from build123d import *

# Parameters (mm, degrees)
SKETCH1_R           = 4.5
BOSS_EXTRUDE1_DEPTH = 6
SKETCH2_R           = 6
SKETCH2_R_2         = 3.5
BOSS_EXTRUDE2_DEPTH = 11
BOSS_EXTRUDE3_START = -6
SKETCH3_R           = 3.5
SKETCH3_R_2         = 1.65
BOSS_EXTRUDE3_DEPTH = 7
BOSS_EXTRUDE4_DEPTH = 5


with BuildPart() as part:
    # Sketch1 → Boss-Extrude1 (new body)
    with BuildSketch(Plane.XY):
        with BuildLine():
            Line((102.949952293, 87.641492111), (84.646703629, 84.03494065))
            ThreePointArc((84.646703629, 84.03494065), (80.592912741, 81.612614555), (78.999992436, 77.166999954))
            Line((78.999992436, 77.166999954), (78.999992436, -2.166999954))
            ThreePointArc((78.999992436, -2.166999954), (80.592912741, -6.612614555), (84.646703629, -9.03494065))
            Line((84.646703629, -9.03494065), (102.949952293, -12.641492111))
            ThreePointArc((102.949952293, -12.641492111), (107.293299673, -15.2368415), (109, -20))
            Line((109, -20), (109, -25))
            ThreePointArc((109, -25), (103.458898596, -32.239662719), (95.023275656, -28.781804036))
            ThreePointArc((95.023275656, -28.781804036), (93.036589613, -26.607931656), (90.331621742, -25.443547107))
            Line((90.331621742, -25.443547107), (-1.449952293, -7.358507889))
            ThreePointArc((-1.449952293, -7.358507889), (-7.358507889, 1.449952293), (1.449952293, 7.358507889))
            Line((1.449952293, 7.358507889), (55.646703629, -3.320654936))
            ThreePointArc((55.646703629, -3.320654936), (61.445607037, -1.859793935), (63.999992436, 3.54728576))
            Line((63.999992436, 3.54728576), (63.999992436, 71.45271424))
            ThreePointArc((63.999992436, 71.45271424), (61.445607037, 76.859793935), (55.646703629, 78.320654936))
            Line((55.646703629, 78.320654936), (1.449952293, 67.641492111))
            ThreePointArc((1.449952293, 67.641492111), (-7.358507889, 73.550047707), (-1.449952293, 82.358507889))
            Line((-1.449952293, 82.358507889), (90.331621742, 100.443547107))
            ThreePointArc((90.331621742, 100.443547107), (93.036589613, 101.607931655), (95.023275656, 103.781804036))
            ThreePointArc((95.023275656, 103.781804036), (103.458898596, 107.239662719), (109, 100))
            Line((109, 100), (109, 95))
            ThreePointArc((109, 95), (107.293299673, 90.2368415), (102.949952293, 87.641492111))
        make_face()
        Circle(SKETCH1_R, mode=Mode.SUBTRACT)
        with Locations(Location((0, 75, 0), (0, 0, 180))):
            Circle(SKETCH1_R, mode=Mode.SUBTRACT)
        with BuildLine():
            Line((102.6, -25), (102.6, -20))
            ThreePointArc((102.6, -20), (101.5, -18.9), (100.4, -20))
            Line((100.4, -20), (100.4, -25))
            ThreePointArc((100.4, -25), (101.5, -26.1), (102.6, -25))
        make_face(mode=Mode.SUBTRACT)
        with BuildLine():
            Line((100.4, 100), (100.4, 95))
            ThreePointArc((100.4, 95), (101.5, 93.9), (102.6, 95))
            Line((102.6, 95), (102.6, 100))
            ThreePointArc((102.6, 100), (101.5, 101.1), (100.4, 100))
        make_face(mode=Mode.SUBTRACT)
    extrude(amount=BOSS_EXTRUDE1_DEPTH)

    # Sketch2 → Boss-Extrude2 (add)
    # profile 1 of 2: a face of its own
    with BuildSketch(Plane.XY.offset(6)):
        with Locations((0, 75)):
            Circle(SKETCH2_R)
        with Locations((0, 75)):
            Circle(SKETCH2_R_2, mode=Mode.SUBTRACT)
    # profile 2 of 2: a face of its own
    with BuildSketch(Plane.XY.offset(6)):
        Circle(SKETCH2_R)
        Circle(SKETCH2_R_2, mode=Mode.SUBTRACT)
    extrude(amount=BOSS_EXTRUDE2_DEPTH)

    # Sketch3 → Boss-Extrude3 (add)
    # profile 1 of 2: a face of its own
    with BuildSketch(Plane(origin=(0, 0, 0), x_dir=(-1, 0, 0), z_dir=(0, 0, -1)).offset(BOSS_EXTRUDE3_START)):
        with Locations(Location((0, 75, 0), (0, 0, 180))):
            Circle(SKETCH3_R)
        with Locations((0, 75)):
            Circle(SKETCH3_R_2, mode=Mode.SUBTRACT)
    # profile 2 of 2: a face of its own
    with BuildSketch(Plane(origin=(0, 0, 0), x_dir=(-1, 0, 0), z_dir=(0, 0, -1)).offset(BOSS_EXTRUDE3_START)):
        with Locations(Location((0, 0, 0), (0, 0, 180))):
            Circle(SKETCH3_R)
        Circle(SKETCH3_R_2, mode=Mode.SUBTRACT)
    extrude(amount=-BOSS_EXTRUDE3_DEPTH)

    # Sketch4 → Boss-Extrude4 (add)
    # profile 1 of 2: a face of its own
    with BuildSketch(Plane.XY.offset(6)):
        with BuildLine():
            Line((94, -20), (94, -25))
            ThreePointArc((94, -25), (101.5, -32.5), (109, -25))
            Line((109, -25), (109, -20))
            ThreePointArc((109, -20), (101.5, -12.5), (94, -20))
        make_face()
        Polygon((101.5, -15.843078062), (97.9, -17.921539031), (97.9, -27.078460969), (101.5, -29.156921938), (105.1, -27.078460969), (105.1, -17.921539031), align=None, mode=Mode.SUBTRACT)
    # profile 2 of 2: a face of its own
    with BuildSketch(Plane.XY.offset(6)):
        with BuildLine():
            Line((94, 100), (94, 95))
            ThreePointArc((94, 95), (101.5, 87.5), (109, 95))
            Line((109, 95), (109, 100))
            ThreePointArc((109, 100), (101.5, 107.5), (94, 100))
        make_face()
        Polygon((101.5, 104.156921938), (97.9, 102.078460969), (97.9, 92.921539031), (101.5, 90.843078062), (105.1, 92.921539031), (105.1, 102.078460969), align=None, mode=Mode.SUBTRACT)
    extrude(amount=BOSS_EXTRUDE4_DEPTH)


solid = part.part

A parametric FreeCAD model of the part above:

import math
import FreeCAD as App
import Part
import Sketcher
from FreeCAD import Vector
Q = App.Units.Quantity


def add_polygon(sketch, points):
    """Adds a closed chain of lines whose ends are joined by coincident constraints."""
    first, n = sketch.GeometryCount, len(points)
    for a, b in zip(points, points[1:] + points[:1]):
        sketch.addGeometry(Part.LineSegment(App.Vector(*a, 0), App.Vector(*b, 0)), False)
    for i in range(n):
        sketch.addConstraint(Sketcher.Constraint("Coincident", first + i, 2, first + (i + 1) % n, 1))

doc = App.newDocument("Part")
body = doc.addObject("PartDesign::Body", "Body")

# Sketch on XY plane
sketch1 = body.newObject("Sketcher::SketchObject", "Sketch")
sketch1.AttachmentSupport = (doc.getObject("XY_Plane"), [""])
sketch1.MapMode = "FlatFace"
sketch1.addGeometry(Part.LineSegment(Vector(84.6, 84, 0), Vector(102.9, 87.6, 0)), False)
sketch1.addGeometry(Part.ArcOfCircle(Part.Circle(Vector(101.5, 95, 0), Vector(0, 0, 1), 7.5), math.radians(-79), math.radians(0)), False)
sketch1.addGeometry(Part.LineSegment(Vector(109, 95, 0), Vector(109, 100, 0)), False)
sketch1.addGeometry(Part.ArcOfCircle(Part.Circle(Vector(101.5, 100, 0), Vector(0, 0, 1), 7.5), math.radians(0), math.radians(150)), False)
sketch1.addGeometry(Part.ArcOfCircle(Part.Circle(Vector(89, 107.3, 0), Vector(0, 0, 1), 7), math.radians(-79), math.radians(-30)), False)
sketch1.addGeometry(Part.LineSegment(Vector(90.3, 100.4, 0), Vector(-1.4, 82.4, 0)), False)
sketch1.addGeometry(Part.ArcOfCircle(Part.Circle(Vector(0, 75, 0), Vector(0, 0, 1), 7.5), math.radians(101), math.radians(281)), False)
sketch1.addGeometry(Part.LineSegment(Vector(1.4, 67.6, 0), Vector(55.6, 78.3, 0)), False)
sketch1.addGeometry(Part.ArcOfCircle(Part.Circle(Vector(57, 71.5, 0), Vector(0, 0, 1), 7), math.radians(0), math.radians(101)), False)
sketch1.addGeometry(Part.LineSegment(Vector(64, 71.5, 0), Vector(64, 3.5, 0)), False)
sketch1.addGeometry(Part.ArcOfCircle(Part.Circle(Vector(57, 3.5, 0), Vector(0, 0, 1), 7), math.radians(-101), math.radians(0)), False)
sketch1.addGeometry(Part.LineSegment(Vector(55.6, -3.3, 0), Vector(1.4, 7.4, 0)), False)
sketch1.addGeometry(Part.ArcOfCircle(Part.Circle(Vector(0, 0, 0), Vector(0, 0, 1), 7.5), math.radians(79), math.radians(259)), False)
sketch1.addGeometry(Part.LineSegment(Vector(-1.4, -7.4, 0), Vector(90.3, -25.4, 0)), False)
sketch1.addGeometry(Part.ArcOfCircle(Part.Circle(Vector(89, -32.3, 0), Vector(0, 0, 1), 7), math.radians(30), math.radians(79)), False)
sketch1.addGeometry(Part.ArcOfCircle(Part.Circle(Vector(101.5, -25, 0), Vector(0, 0, 1), 7.5), math.radians(-150), math.radians(0)), False)
sketch1.addGeometry(Part.LineSegment(Vector(109, -25, 0), Vector(109, -20, 0)), False)
sketch1.addGeometry(Part.ArcOfCircle(Part.Circle(Vector(101.5, -20, 0), Vector(0, 0, 1), 7.5), math.radians(0), math.radians(79)), False)
sketch1.addGeometry(Part.LineSegment(Vector(102.9, -12.6, 0), Vector(84.6, -9, 0)), False)
sketch1.addGeometry(Part.ArcOfCircle(Part.Circle(Vector(86, -2.2, 0), Vector(0, 0, 1), 7), math.radians(180), math.radians(259)), False)
sketch1.addGeometry(Part.LineSegment(Vector(79, -2.2, 0), Vector(79, 77.2, 0)), False)
sketch1.addGeometry(Part.ArcOfCircle(Part.Circle(Vector(86, 77.2, 0), Vector(0, 0, 1), 7), math.radians(101), math.radians(180)), False)
sketch1.addGeometry(Part.ArcOfCircle(Part.Circle(Vector(101.5, -25, 0), Vector(0, 0, 1), 1.1), math.radians(180), math.radians(360)), False)
sketch1.addGeometry(Part.LineSegment(Vector(100.4, -25, 0), Vector(100.4, -20, 0)), False)
sketch1.addGeometry(Part.ArcOfCircle(Part.Circle(Vector(101.5, -20, 0), Vector(0, 0, 1), 1.1), math.radians(0), math.radians(180)), False)
sketch1.addGeometry(Part.LineSegment(Vector(102.6, -20, 0), Vector(102.6, -25, 0)), False)
sketch1.addGeometry(Part.Circle(Vector(0, 0, 0), Vector(0, 0, 1), 4.5), False)
sketch1.addGeometry(Part.ArcOfCircle(Part.Circle(Vector(101.5, 100, 0), Vector(0, 0, 1), 1.1), math.radians(0), math.radians(180)), False)
sketch1.addGeometry(Part.LineSegment(Vector(102.6, 100, 0), Vector(102.6, 95, 0)), False)
sketch1.addGeometry(Part.ArcOfCircle(Part.Circle(Vector(101.5, 95, 0), Vector(0, 0, 1), 1.1), math.radians(180), math.radians(360)), False)
sketch1.addGeometry(Part.LineSegment(Vector(100.4, 95, 0), Vector(100.4, 100, 0)), False)
sketch1.addGeometry(Part.Circle(Vector(0, 75, 0), Vector(0, 0, 1), 4.5), False)
sketch1.addConstraint(Sketcher.Constraint("Tangent", 0, 2, 1, 1))
sketch1.addConstraint(Sketcher.Constraint("Tangent", 1, 2, 2, 1))
sketch1.addConstraint(Sketcher.Constraint("Tangent", 2, 2, 3, 1))
sketch1.addConstraint(Sketcher.Constraint("Tangent", 3, 2, 4, 2))
sketch1.addConstraint(Sketcher.Constraint("Tangent", 4, 1, 5, 1))
sketch1.addConstraint(Sketcher.Constraint("Tangent", 5, 2, 6, 1))
sketch1.addConstraint(Sketcher.Constraint("Tangent", 6, 2, 7, 1))
sketch1.addConstraint(Sketcher.Constraint("Tangent", 7, 2, 8, 2))
sketch1.addConstraint(Sketcher.Constraint("Tangent", 8, 1, 9, 1))
sketch1.addConstraint(Sketcher.Constraint("Tangent", 9, 2, 10, 2))
sketch1.addConstraint(Sketcher.Constraint("Tangent", 10, 1, 11, 1))
sketch1.addConstraint(Sketcher.Constraint("Tangent", 11, 2, 12, 1))
sketch1.addConstraint(Sketcher.Constraint("Tangent", 12, 2, 13, 1))
sketch1.addConstraint(Sketcher.Constraint("Tangent", 13, 2, 14, 2))
sketch1.addConstraint(Sketcher.Constraint("Tangent", 14, 1, 15, 1))
sketch1.addConstraint(Sketcher.Constraint("Tangent", 15, 2, 16, 1))
sketch1.addConstraint(Sketcher.Constraint("Tangent", 16, 2, 17, 1))
sketch1.addConstraint(Sketcher.Constraint("Tangent", 17, 2, 18, 1))
sketch1.addConstraint(Sketcher.Constraint("Tangent", 18, 2, 19, 2))
sketch1.addConstraint(Sketcher.Constraint("Tangent", 19, 1, 20, 1))
sketch1.addConstraint(Sketcher.Constraint("Tangent", 20, 2, 21, 2))
sketch1.addConstraint(Sketcher.Constraint("Tangent", 21, 1, 0, 1))
sketch1.addConstraint(Sketcher.Constraint("Tangent", 22, 1, 23, 1))
sketch1.addConstraint(Sketcher.Constraint("Tangent", 23, 2, 24, 2))
sketch1.addConstraint(Sketcher.Constraint("Tangent", 24, 1, 25, 1))
sketch1.addConstraint(Sketcher.Constraint("Tangent", 25, 2, 22, 2))
sketch1.addConstraint(Sketcher.Constraint("Tangent", 27, 1, 28, 1))
sketch1.addConstraint(Sketcher.Constraint("Tangent", 28, 2, 29, 2))
sketch1.addConstraint(Sketcher.Constraint("Tangent", 29, 1, 30, 1))
sketch1.addConstraint(Sketcher.Constraint("Tangent", 30, 2, 27, 2))
sketch1.addConstraint(Sketcher.Constraint("Vertical", 2))
sketch1.addConstraint(Sketcher.Constraint("Vertical", 9))
sketch1.addConstraint(Sketcher.Constraint("Vertical", 16))
sketch1.addConstraint(Sketcher.Constraint("Vertical", 20))
sketch1.addConstraint(Sketcher.Constraint("Vertical", 23))
sketch1.addConstraint(Sketcher.Constraint("Vertical", 25))
sketch1.addConstraint(Sketcher.Constraint("Vertical", 28))
sketch1.addConstraint(Sketcher.Constraint("Vertical", 30))
sketch1.addConstraint(Sketcher.Constraint("Coincident", 12, 3, -1, 1))
sketch1.addConstraint(Sketcher.Constraint("Coincident", 26, 3, -1, 1))
sketch1.addConstraint(Sketcher.Constraint("Coincident", 22, 3, 15, 3))
sketch1.addConstraint(Sketcher.Constraint("Coincident", 24, 3, 17, 3))
sketch1.addConstraint(Sketcher.Constraint("Coincident", 27, 3, 3, 3))
sketch1.addConstraint(Sketcher.Constraint("Coincident", 29, 3, 1, 3))
sketch1.addConstraint(Sketcher.Constraint("Coincident", 31, 3, 6, 3))
sketch1.addConstraint(Sketcher.Constraint("Equal", 3, 6))
sketch1.addConstraint(Sketcher.Constraint("Equal", 4, 8))
sketch1.addConstraint(Sketcher.Constraint("Equal", 8, 10))
sketch1.addConstraint(Sketcher.Constraint("Equal", 6, 12))
sketch1.addConstraint(Sketcher.Constraint("Equal", 10, 14))
sketch1.addConstraint(Sketcher.Constraint("Equal", 12, 15))
sketch1.addConstraint(Sketcher.Constraint("Equal", 14, 19))
sketch1.addConstraint(Sketcher.Constraint("Equal", 19, 21))
sketch1.addConstraint(Sketcher.Constraint("Equal", 24, 27))
sketch1.addConstraint(Sketcher.Constraint("Equal", 26, 31))
sketch1.addConstraint(Sketcher.Constraint("PointOnObject", 6, 3, -2))
sketch1.addConstraint(Sketcher.Constraint("Parallel", 0, 5))
sketch1.addConstraint(Sketcher.Constraint("Parallel", 5, 7))
sketch1.addConstraint(Sketcher.Constraint("Parallel", 11, 13))
sketch1.addConstraint(Sketcher.Constraint("Parallel", 13, 18))
sketch1.addConstraint(Sketcher.Constraint("Vertical", 4, 3, 14, 3))
sketch1.addConstraint(Sketcher.Constraint("Vertical", 3, 3, 15, 3))
sketch1.addConstraint(Sketcher.Constraint("Vertical", 7, 2, 10, 1))
sketch1.addConstraint(Sketcher.Constraint("Equal", 2, 16))
sketch1.addConstraint(Sketcher.Constraint("Diameter", 26, 9.0))
sketch1.addConstraint(Sketcher.Constraint("Radius", 4, 7.0))
sketch1.addConstraint(Sketcher.Constraint("Radius", 1, 7.5))
sketch1.addConstraint(Sketcher.Constraint("Radius", 22, 1.1))
sketch1.addConstraint(Sketcher.Constraint("DistanceY", 2, 1, 2, 2, 5.0))
sketch1.addConstraint(Sketcher.Constraint("DistanceY", -1, 1, 1, 3, 95.0))
sketch1.addConstraint(Sketcher.Constraint("DistanceY", -1, 1, 6, 3, 75.0))
sketch1.addConstraint(Sketcher.Constraint("DistanceX", -1, 1, 1, 2, 109.0))
sketch1.addConstraint(Sketcher.Constraint("DistanceX", 10, 3, 19, 3, 29.0))
sketch1.addConstraint(Sketcher.Constraint("DistanceY", 20, 1, 20, 2, 79.334))
sketch1.addConstraint(Sketcher.Constraint("DistanceY", 9, 2, 9, 1, 67.905428))
pad1 = body.newObject("PartDesign::Pad", "Pad")
pad1.Profile = sketch1
pad1.Length = 6

# Sketch on XY plane
sketch2 = body.newObject("Sketcher::SketchObject", "Sketch001")
sketch2.AttachmentSupport = (doc.getObject("XY_Plane"), [""])
sketch2.MapMode = "FlatFace"
sketch2.AttachmentOffset = App.Placement(Vector(0, 0, 6), App.Rotation())
sketch2.addGeometry(Part.Circle(Vector(0, 75, 0), Vector(0, 0, 1), 6), False)
sketch2.addGeometry(Part.Circle(Vector(0, 75, 0), Vector(0, 0, 1), 3.5), False)
sketch2.addGeometry(Part.Circle(Vector(0, 0, 0), Vector(0, 0, 1), 6), False)
sketch2.addGeometry(Part.Circle(Vector(0, 0, 0), Vector(0, 0, 1), 3.5), False)
sketch2.addConstraint(Sketcher.Constraint("Coincident", 2, 3, -1, 1))
sketch2.addConstraint(Sketcher.Constraint("Coincident", 3, 3, -1, 1))
sketch2.addConstraint(Sketcher.Constraint("Coincident", 1, 3, 0, 3))
sketch2.addConstraint(Sketcher.Constraint("Equal", 0, 2))
sketch2.addConstraint(Sketcher.Constraint("Equal", 1, 3))
sketch2.addConstraint(Sketcher.Constraint("PointOnObject", 0, 3, -2))
sketch2.addConstraint(Sketcher.Constraint("Diameter", 0, 12.0))
sketch2.addConstraint(Sketcher.Constraint("Diameter", 1, 7.0))
sketch2.addConstraint(Sketcher.Constraint("DistanceY", -1, 1, 0, 3, 75.0))
pad2 = body.newObject("PartDesign::Pad", "Pad001")
pad2.Profile = sketch2
pad2.Length = 11

# Sketch on XY plane
sketch3 = body.newObject("Sketcher::SketchObject", "Sketch002")
sketch3.AttachmentSupport = (doc.getObject("XY_Plane"), [""])
sketch3.MapMode = "FlatFace"
sketch3.AttachmentOffset = App.Placement(Vector(0, 0, 6), App.Rotation())
sketch3.addGeometry(Part.Circle(Vector(0, 75, 0), Vector(0, 0, 1), 3.5), False)
sketch3.addGeometry(Part.Circle(Vector(0, 75, 0), Vector(0, 0, 1), 1.6), False)
sketch3.addGeometry(Part.Circle(Vector(0, 0, 0), Vector(0, 0, 1), 3.5), False)
sketch3.addGeometry(Part.Circle(Vector(0, 0, 0), Vector(0, 0, 1), 1.6), False)
sketch3.addConstraint(Sketcher.Constraint("Coincident", 2, 3, -1, 1))
sketch3.addConstraint(Sketcher.Constraint("Coincident", 3, 3, -1, 1))
sketch3.addConstraint(Sketcher.Constraint("Coincident", 1, 3, 0, 3))
sketch3.addConstraint(Sketcher.Constraint("Equal", 0, 2))
sketch3.addConstraint(Sketcher.Constraint("Equal", 1, 3))
sketch3.addConstraint(Sketcher.Constraint("PointOnObject", 0, 3, -2))
sketch3.addConstraint(Sketcher.Constraint("Diameter", 0, 7.0))
sketch3.addConstraint(Sketcher.Constraint("Diameter", 1, 3.3))
sketch3.addConstraint(Sketcher.Constraint("DistanceY", -1, 1, 0, 3, 75.0))
pad3 = body.newObject("PartDesign::Pad", "Pad002")
pad3.Profile = sketch3
pad3.Length = 7

# Sketch on XY plane
sketch4 = body.newObject("Sketcher::SketchObject", "Sketch003")
sketch4.AttachmentSupport = (doc.getObject("XY_Plane"), [""])
sketch4.MapMode = "FlatFace"
sketch4.AttachmentOffset = App.Placement(Vector(0, 0, 6), App.Rotation())
sketch4.addGeometry(Part.LineSegment(Vector(94, -20, 0), Vector(94, -25, 0)), False)  # 0
sketch4.addGeometry(Part.ArcOfCircle(Part.Circle(Vector(101.5, -25, 0), Vector(0, 0, 1), 7.5), math.radians(180), math.radians(360)), False)  # 1
sketch4.addGeometry(Part.LineSegment(Vector(109, -25, 0), Vector(109, -20, 0)), False)  # 2
sketch4.addGeometry(Part.ArcOfCircle(Part.Circle(Vector(101.5, -20, 0), Vector(0, 0, 1), 7.5), math.radians(0), math.radians(180)), False)  # 3
add_polygon(sketch4, [(97.9, -17.9), (101.5, -15.8), (105.1, -17.9), (105.1, -27.1), (101.5, -29.2), (97.9, -27.1)])  # lines 4-9
sketch4.addGeometry(Part.LineSegment(Vector(94, 100, 0), Vector(94, 95, 0)), False)  # 10
sketch4.addGeometry(Part.ArcOfCircle(Part.Circle(Vector(101.5, 95, 0), Vector(0, 0, 1), 7.5), math.radians(180), math.radians(360)), False)  # 11
sketch4.addGeometry(Part.LineSegment(Vector(109, 95, 0), Vector(109, 100, 0)), False)  # 12
sketch4.addGeometry(Part.ArcOfCircle(Part.Circle(Vector(101.5, 100, 0), Vector(0, 0, 1), 7.5), math.radians(0), math.radians(180)), False)  # 13
add_polygon(sketch4, [(97.9, 102.1), (101.5, 104.2), (105.1, 102.1), (105.1, 92.9), (101.5, 90.8), (97.9, 92.9)])  # lines 14-19
sketch4.addConstraint(Sketcher.Constraint("Tangent", 0, 2, 1, 1))
sketch4.addConstraint(Sketcher.Constraint("Tangent", 1, 2, 2, 1))
sketch4.addConstraint(Sketcher.Constraint("Tangent", 2, 2, 3, 1))
sketch4.addConstraint(Sketcher.Constraint("Tangent", 3, 2, 0, 1))
sketch4.addConstraint(Sketcher.Constraint("Tangent", 10, 2, 11, 1))
sketch4.addConstraint(Sketcher.Constraint("Tangent", 11, 2, 12, 1))
sketch4.addConstraint(Sketcher.Constraint("Tangent", 12, 2, 13, 1))
sketch4.addConstraint(Sketcher.Constraint("Tangent", 13, 2, 10, 1))
sketch4.addConstraint(Sketcher.Constraint("Vertical", 0))
sketch4.addConstraint(Sketcher.Constraint("Vertical", 2))
sketch4.addConstraint(Sketcher.Constraint("Vertical", 6))
sketch4.addConstraint(Sketcher.Constraint("Vertical", 9))
sketch4.addConstraint(Sketcher.Constraint("Vertical", 10))
sketch4.addConstraint(Sketcher.Constraint("Vertical", 12))
sketch4.addConstraint(Sketcher.Constraint("Vertical", 16))
sketch4.addConstraint(Sketcher.Constraint("Vertical", 19))
sketch4.addConstraint(Sketcher.Constraint("Equal", 3, 11))
sketch4.addConstraint(Sketcher.Constraint("Parallel", 4, 7))
sketch4.addConstraint(Sketcher.Constraint("Parallel", 5, 8))
sketch4.addConstraint(Sketcher.Constraint("Parallel", 7, 14))
sketch4.addConstraint(Sketcher.Constraint("Parallel", 8, 15))
sketch4.addConstraint(Sketcher.Constraint("Parallel", 14, 17))
sketch4.addConstraint(Sketcher.Constraint("Parallel", 15, 18))
sketch4.addConstraint(Sketcher.Constraint("Horizontal", 6, 2, 8, 2))
sketch4.addConstraint(Sketcher.Constraint("Horizontal", 5, 2, 9, 2))
sketch4.addConstraint(Sketcher.Constraint("Horizontal", 16, 2, 18, 2))
sketch4.addConstraint(Sketcher.Constraint("Horizontal", 15, 2, 19, 2))
sketch4.addConstraint(Sketcher.Constraint("Vertical", 3, 3, 11, 3))
sketch4.addConstraint(Sketcher.Constraint("Vertical", 13, 3, 4, 2))
sketch4.addConstraint(Sketcher.Constraint("Vertical", 4, 2, 7, 2))
sketch4.addConstraint(Sketcher.Constraint("Vertical", 7, 2, 14, 2))
sketch4.addConstraint(Sketcher.Constraint("Vertical", 6, 2, 15, 2))
sketch4.addConstraint(Sketcher.Constraint("Equal", 2, 10))
sketch4.addConstraint(Sketcher.Constraint("Equal", 9, 16))
sketch4.addConstraint(Sketcher.Constraint("Radius", 1, 7.5))
sketch4.addConstraint(Sketcher.Constraint("DistanceY", 0, 2, 0, 1, 5.0))
sketch4.addConstraint(Sketcher.Constraint("Angle", 4, Q("30 deg")))
sketch4.addConstraint(Sketcher.Constraint("DistanceY", 1, 3, -1, 1, 25.0))
sketch4.addConstraint(Sketcher.Constraint("DistanceY", -1, 1, 11, 3, 95.0))
sketch4.addConstraint(Sketcher.Constraint("DistanceX", -1, 1, 0, 2, 94.0))
sketch4.addConstraint(Sketcher.Constraint("DistanceX", -1, 1, 5, 2, 105.1))
sketch4.addConstraint(Sketcher.Constraint("DistanceY", 6, 2, 6, 1, 9.156922))
sketch4.addConstraint(Sketcher.Constraint("DistanceY", 4, 2, -1, 1, 15.843078))
sketch4.addConstraint(Sketcher.Constraint("DistanceY", -1, 1, 14, 2, 104.156922))
pad4 = body.newObject("PartDesign::Pad", "Pad003")
pad4.Profile = sketch4
pad4.Length = 5

doc.recompute()
